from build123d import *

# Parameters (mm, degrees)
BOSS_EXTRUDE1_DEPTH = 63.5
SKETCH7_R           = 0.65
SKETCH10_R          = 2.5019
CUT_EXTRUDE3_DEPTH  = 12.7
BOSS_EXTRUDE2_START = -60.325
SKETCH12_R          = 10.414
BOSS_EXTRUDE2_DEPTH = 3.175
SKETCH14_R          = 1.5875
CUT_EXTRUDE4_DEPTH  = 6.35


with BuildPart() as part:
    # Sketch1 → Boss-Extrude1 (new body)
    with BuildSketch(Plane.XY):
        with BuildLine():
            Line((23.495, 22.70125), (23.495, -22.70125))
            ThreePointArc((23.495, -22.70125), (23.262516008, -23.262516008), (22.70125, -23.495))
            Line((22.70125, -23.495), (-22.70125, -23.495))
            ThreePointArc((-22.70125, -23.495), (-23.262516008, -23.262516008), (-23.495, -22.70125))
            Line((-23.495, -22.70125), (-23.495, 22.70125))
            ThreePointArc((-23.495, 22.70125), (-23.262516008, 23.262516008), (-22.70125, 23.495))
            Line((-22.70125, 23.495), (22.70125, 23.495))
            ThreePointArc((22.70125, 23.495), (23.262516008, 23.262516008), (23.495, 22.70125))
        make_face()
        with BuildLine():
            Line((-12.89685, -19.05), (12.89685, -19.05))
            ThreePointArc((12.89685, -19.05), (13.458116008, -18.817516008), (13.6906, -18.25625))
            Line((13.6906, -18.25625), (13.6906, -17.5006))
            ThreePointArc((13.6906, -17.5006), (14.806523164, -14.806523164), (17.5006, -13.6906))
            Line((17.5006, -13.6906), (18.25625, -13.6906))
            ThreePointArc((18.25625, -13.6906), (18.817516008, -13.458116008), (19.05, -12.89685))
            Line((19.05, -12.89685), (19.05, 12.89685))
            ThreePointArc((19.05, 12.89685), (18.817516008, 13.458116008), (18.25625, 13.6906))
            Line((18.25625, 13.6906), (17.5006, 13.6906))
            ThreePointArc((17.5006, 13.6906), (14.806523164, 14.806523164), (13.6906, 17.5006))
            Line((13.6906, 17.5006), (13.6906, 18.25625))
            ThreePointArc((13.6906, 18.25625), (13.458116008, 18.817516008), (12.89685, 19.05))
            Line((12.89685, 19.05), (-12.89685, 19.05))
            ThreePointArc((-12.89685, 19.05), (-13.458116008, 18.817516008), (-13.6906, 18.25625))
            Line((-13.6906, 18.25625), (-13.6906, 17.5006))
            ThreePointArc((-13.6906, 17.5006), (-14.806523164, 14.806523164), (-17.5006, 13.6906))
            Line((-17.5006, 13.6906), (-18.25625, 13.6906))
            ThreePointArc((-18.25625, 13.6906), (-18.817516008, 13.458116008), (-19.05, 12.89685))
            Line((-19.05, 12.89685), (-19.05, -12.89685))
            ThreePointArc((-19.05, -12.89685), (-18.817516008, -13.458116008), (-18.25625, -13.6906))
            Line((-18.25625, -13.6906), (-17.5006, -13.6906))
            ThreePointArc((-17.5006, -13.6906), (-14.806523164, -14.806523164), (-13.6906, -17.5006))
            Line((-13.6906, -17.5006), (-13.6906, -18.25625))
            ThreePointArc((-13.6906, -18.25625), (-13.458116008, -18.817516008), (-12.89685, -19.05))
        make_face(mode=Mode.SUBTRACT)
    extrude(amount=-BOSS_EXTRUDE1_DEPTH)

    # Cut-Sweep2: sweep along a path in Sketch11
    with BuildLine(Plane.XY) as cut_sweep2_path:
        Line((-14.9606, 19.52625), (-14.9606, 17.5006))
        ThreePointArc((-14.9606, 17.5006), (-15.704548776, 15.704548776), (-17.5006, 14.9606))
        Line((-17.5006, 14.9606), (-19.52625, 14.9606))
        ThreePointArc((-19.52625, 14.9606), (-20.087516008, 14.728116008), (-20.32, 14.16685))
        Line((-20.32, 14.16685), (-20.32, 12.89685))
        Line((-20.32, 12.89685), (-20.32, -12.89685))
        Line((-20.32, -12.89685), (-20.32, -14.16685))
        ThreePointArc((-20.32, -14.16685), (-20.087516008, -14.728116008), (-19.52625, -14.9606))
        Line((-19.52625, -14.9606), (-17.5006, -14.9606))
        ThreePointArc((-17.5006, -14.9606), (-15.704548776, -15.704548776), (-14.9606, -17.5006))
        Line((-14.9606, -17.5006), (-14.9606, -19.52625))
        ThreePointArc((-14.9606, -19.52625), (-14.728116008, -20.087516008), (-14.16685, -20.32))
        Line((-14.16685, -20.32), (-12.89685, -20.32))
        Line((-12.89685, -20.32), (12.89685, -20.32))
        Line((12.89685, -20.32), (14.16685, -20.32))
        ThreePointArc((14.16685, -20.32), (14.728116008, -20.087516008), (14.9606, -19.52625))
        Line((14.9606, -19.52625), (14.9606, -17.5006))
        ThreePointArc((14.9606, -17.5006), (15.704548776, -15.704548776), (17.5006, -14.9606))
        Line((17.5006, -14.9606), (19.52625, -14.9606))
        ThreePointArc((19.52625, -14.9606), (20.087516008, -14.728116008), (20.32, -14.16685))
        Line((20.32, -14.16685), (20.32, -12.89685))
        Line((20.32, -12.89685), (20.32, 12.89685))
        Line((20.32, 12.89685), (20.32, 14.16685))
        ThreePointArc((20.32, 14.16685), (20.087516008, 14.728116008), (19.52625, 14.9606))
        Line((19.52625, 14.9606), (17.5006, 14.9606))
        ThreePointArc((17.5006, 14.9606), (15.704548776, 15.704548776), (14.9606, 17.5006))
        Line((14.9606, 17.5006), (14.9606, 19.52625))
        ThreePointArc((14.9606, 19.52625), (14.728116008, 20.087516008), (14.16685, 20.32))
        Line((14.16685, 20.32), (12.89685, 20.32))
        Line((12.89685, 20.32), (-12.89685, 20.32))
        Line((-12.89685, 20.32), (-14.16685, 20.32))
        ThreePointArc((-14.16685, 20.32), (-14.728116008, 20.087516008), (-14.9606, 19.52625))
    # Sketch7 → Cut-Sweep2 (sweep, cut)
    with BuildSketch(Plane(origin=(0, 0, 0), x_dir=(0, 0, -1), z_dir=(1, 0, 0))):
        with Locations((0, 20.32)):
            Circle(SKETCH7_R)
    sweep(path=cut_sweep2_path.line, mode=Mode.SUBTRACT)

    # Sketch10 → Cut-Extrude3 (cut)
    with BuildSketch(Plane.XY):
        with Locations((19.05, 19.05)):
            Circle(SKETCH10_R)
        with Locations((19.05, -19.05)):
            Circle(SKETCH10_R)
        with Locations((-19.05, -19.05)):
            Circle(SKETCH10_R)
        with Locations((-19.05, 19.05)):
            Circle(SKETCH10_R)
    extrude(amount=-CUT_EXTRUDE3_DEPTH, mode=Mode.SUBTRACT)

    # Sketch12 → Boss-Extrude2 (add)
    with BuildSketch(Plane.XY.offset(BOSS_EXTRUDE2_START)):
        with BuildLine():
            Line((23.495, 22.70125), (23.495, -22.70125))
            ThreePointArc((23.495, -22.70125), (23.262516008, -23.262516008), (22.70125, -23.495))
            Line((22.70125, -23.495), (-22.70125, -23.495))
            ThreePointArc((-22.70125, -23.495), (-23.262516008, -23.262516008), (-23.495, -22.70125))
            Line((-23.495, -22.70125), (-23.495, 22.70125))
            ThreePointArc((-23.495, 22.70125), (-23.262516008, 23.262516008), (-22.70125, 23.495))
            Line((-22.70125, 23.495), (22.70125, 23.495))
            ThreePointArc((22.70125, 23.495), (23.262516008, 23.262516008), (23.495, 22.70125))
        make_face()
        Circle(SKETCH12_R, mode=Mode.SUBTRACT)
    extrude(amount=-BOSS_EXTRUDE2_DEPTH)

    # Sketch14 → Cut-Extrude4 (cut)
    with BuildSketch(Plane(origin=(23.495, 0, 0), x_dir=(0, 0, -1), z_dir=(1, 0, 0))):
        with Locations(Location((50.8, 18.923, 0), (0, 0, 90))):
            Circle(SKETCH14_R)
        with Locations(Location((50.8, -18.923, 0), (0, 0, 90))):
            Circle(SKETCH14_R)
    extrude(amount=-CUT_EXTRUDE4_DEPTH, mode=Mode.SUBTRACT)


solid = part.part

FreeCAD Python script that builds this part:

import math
import FreeCAD as App
import Part
import Sketcher
Q = App.Units.Quantity

doc = App.newDocument("Part")
body = doc.addObject("PartDesign::Body", "Body")

# Sketch on XY plane
sketch1 = body.newObject("Sketcher::SketchObject", "Sketch")
sketch1.AttachmentSupport = (doc.getObject("XY_Plane"), [""])
sketch1.MapMode = "FlatFace"
sketch1.addGeometry([
    Part.LineSegment(App.Vector(23.495, -22.70125, 0), App.Vector(23.495, 22.70125, 0)),  # 0
    Part.ArcOfCircle(Part.Circle(App.Vector(22.70125, 22.70125, 0), App.Vector(0, 0, 1), 0.79375), math.radians(0), math.radians(90)),  # 1
    Part.LineSegment(App.Vector(22.70125, 23.495, 0), App.Vector(-22.70125, 23.495, 0)),  # 2
    Part.ArcOfCircle(Part.Circle(App.Vector(-22.70125, 22.70125, 0), App.Vector(0, 0, 1), 0.79375), math.radians(90), math.radians(180)),  # 3
    Part.LineSegment(App.Vector(-23.495, 22.70125, 0), App.Vector(-23.495, -22.70125, 0)),  # 4
    Part.ArcOfCircle(Part.Circle(App.Vector(-22.70125, -22.70125, 0), App.Vector(0, 0, 1), 0.79375), math.radians(180), math.radians(270)),  # 5
    Part.LineSegment(App.Vector(-22.70125, -23.495, 0), App.Vector(22.70125, -23.495, 0)),  # 6
    Part.ArcOfCircle(Part.Circle(App.Vector(22.70125, -22.70125, 0), App.Vector(0, 0, 1), 0.79375), math.radians(-90), math.radians(0)),  # 7
    Part.ArcOfCircle(Part.Circle(App.Vector(-12.89685, -18.25625, 0), App.Vector(0, 0, 1), 0.79375), math.radians(180), math.radians(270)),  # 8
    Part.LineSegment(App.Vector(-13.6906, -18.25625, 0), App.Vector(-13.6906, -17.5006, 0)),  # 9
    Part.ArcOfCircle(Part.Circle(App.Vector(-17.5006, -17.5006, 0), App.Vector(0, 0, 1), 3.81), math.radians(0), math.radians(90)),  # 10
    Part.LineSegment(App.Vector(-17.5006, -13.6906, 0), App.Vector(-18.25625, -13.6906, 0)),  # 11
    Part.ArcOfCircle(Part.Circle(App.Vector(-18.25625, -12.89685, 0), App.Vector(0, 0, 1), 0.79375), math.radians(180), math.radians(270)),  # 12
    Part.LineSegment(App.Vector(-19.05, -12.89685, 0), App.Vector(-19.05, 12.89685, 0)),  # 13
    Part.ArcOfCircle(Part.Circle(App.Vector(-18.25625, 12.89685, 0), App.Vector(0, 0, 1), 0.79375), math.radians(90), math.radians(180)),  # 14
    Part.LineSegment(App.Vector(-18.25625, 13.6906, 0), App.Vector(-17.5006, 13.6906, 0)),  # 15
    Part.ArcOfCircle(Part.Circle(App.Vector(-17.5006, 17.5006, 0), App.Vector(0, 0, 1), 3.81), math.radians(-90), math.radians(0)),  # 16
    Part.LineSegment(App.Vector(-13.6906, 17.5006, 0), App.Vector(-13.6906, 18.25625, 0)),  # 17
    Part.ArcOfCircle(Part.Circle(App.Vector(-12.89685, 18.25625, 0), App.Vector(0, 0, 1), 0.79375), math.radians(90), math.radians(180)),  # 18
    Part.LineSegment(App.Vector(-12.89685, 19.05, 0), App.Vector(12.89685, 19.05, 0)),  # 19
    Part.ArcOfCircle(Part.Circle(App.Vector(12.89685, 18.25625, 0), App.Vector(0, 0, 1), 0.79375), math.radians(0), math.radians(90)),  # 20
    Part.LineSegment(App.Vector(13.6906, 18.25625, 0), App.Vector(13.6906, 17.5006, 0)),  # 21
    Part.ArcOfCircle(Part.Circle(App.Vector(17.5006, 17.5006, 0), App.Vector(0, 0, 1), 3.81), math.radians(-180), math.radians(-90)),  # 22
    Part.LineSegment(App.Vector(17.5006, 13.6906, 0), App.Vector(18.25625, 13.6906, 0)),  # 23
    Part.ArcOfCircle(Part.Circle(App.Vector(18.25625, 12.89685, 0), App.Vector(0, 0, 1), 0.79375), math.radians(0), math.radians(90)),  # 24
    Part.LineSegment(App.Vector(19.05, 12.89685, 0), App.Vector(19.05, -12.89685, 0)),  # 25
    Part.ArcOfCircle(Part.Circle(App.Vector(18.25625, -12.89685, 0), App.Vector(0, 0, 1), 0.79375), math.radians(-90), math.radians(0)),  # 26
    Part.LineSegment(App.Vector(18.25625, -13.6906, 0), App.Vector(17.5006, -13.6906, 0)),  # 27
    Part.ArcOfCircle(Part.Circle(App.Vector(17.5006, -17.5006, 0), App.Vector(0, 0, 1), 3.81), math.radians(90), math.radians(180)),  # 28
    Part.LineSegment(App.Vector(13.6906, -17.5006, 0), App.Vector(13.6906, -18.25625, 0)),  # 29
    Part.ArcOfCircle(Part.Circle(App.Vector(12.89685, -18.25625, 0), App.Vector(0, 0, 1), 0.79375), math.radians(-90), math.radians(0)),  # 30
    Part.LineSegment(App.Vector(12.89685, -19.05, 0), App.Vector(-12.89685, -19.05, 0)),  # 31
], False)
sketch1.addConstraint([
    Sketcher.Constraint("Tangent", 0, 2, 1, 1),
    Sketcher.Constraint("Tangent", 1, 2, 2, 1),
    Sketcher.Constraint("Tangent", 2, 2, 3, 1),
    Sketcher.Constraint("Tangent", 3, 2, 4, 1),
    Sketcher.Constraint("Tangent", 4, 2, 5, 1),
    Sketcher.Constraint("Tangent", 5, 2, 6, 1),
    Sketcher.Constraint("Tangent", 6, 2, 7, 1),
    Sketcher.Constraint("Tangent", 7, 2, 0, 1),
    Sketcher.Constraint("Tangent", 8, 1, 9, 1),
    Sketcher.Constraint("Tangent", 9, 2, 10, 1),
    Sketcher.Constraint("Tangent", 10, 2, 11, 1),
    Sketcher.Constraint("Tangent", 11, 2, 12, 2),
    Sketcher.Constraint("Tangent", 12, 1, 13, 1),
    Sketcher.Constraint("Tangent", 13, 2, 14, 2),
    Sketcher.Constraint("Tangent", 14, 1, 15, 1),
    Sketcher.Constraint("Tangent", 15, 2, 16, 1),
    Sketcher.Constraint("Tangent", 16, 2, 17, 1),
    Sketcher.Constraint("Tangent", 17, 2, 18, 2),
    Sketcher.Constraint("Tangent", 18, 1, 19, 1),
    Sketcher.Constraint("Tangent", 19, 2, 20, 2),
    Sketcher.Constraint("Tangent", 20, 1, 21, 1),
    Sketcher.Constraint("Tangent", 21, 2, 22, 1),
    Sketcher.Constraint("Tangent", 22, 2, 23, 1),
    Sketcher.Constraint("Tangent", 23, 2, 24, 2),
    Sketcher.Constraint("Tangent", 24, 1, 25, 1),
    Sketcher.Constraint("Tangent", 25, 2, 26, 2),
    Sketcher.Constraint("Tangent", 26, 1, 27, 1),
    Sketcher.Constraint("Tangent", 27, 2, 28, 1),
    Sketcher.Constraint("Tangent", 28, 2, 29, 1),
    Sketcher.Constraint("Tangent", 29, 2, 30, 2),
    Sketcher.Constraint("Tangent", 30, 1, 31, 1),
    Sketcher.Constraint("Tangent", 31, 2, 8, 2),
    Sketcher.Constraint("Vertical", 0),
    Sketcher.Constraint("Horizontal", 2),
    Sketcher.Constraint("Vertical", 4),
    Sketcher.Constraint("Horizontal", 6),
    Sketcher.Constraint("Vertical", 9),
    Sketcher.Constraint("Horizontal", 11),
    Sketcher.Constraint("Vertical", 13),
    Sketcher.Constraint("Horizontal", 15),
    Sketcher.Constraint("Vertical", 17),
    Sketcher.Constraint("Horizontal", 19),
    Sketcher.Constraint("Vertical", 21),
    Sketcher.Constraint("Horizontal", 23),
    Sketcher.Constraint("Vertical", 25),
    Sketcher.Constraint("Horizontal", 27),
    Sketcher.Constraint("Vertical", 29),
    Sketcher.Constraint("Horizontal", 31),
    Sketcher.Constraint("Equal", 1, 3),
    Sketcher.Constraint("Equal", 3, 5),
    Sketcher.Constraint("Equal", 5, 7),
    Sketcher.Constraint("Equal", 7, 8),
    Sketcher.Constraint("Equal", 8, 12),
    Sketcher.Constraint("Equal", 12, 14),
    Sketcher.Constraint("Equal", 10, 16),
    Sketcher.Constraint("Equal", 14, 18),
    Sketcher.Constraint("Equal", 18, 20),
    Sketcher.Constraint("Equal", 16, 22),
    Sketcher.Constraint("Equal", 20, 24),
    Sketcher.Constraint("Equal", 24, 26),
    Sketcher.Constraint("Equal", 22, 28),
    Sketcher.Constraint("Equal", 26, 30),
    Sketcher.Constraint("Symmetric", 1, 3, 5, 3, -1, 1),
    Sketcher.Constraint("Symmetric", 8, 3, 20, 3, -1, 1),
    Sketcher.Constraint("Symmetric", 12, 3, 24, 3, -1, 1),
    Sketcher.Constraint("Symmetric", 16, 3, 28, 3, -1, 1),
    Sketcher.Constraint("Symmetric", 16, 3, 22, 3, -2),
    Sketcher.Constraint("Equal", 6, 0),
    Sketcher.Constraint("Equal", 27, 9),
    Sketcher.Constraint("Equal", 31, 13),
    Sketcher.Constraint("Radius", 10, Q("0.15 in")),
    Sketcher.Constraint("Radius", 1, Q("0.03125 in")),
    Sketcher.Constraint("DistanceX", 12, 1, -1, 1, Q("0.75 in")),
    Sketcher.Constraint("DistanceX", 2, 2, 2, 1, Q("1.7875 in")),
    Sketcher.Constraint("DistanceX", 19, 1, 19, 2, Q("1.0155 in")),
])
pad1 = body.newObject("PartDesign::Pad", "Pad")
pad1.Profile = sketch1
pad1.Length = Q("2.5 in")
pad1.Reversed = True

# Sketch on YZ plane
sketch2 = body.newObject("Sketcher::SketchObject", "Sketch001")
sketch2.AttachmentSupport = (doc.getObject("YZ_Plane"), [""])
sketch2.MapMode = "FlatFace"
sketch2.addGeometry(Part.Circle(App.Vector(20.32, 0, 0), App.Vector(0, 0, 1), 0.65), False)
sketch2.addConstraint([
    Sketcher.Constraint("PointOnObject", 0, 3, -1),
    Sketcher.Constraint("DistanceX", -1, 1, 0, 3, Q("0.8 in")),
    Sketcher.Constraint("Diameter", 0, 1.3),
])

# Sketch on XY plane
sketch3 = body.newObject("Sketcher::SketchObject", "Sketch002")
sketch3.AttachmentSupport = (doc.getObject("XY_Plane"), [""])
sketch3.MapMode = "FlatFace"
sketch3.addGeometry([
    Part.LineSegment(App.Vector(-14.9606, 19.52625, 0), App.Vector(-14.9606, 17.5006, 0)),  # 0
    Part.ArcOfCircle(Part.Circle(App.Vector(-17.5006, 17.5006, 0), App.Vector(0, 0, 1), 2.54), math.radians(-90), math.radians(0)),  # 1
    Part.LineSegment(App.Vector(-17.5006, 14.9606, 0), App.Vector(-19.52625, 14.9606, 0)),  # 2
    Part.ArcOfCircle(Part.Circle(App.Vector(-19.52625, 14.16685, 0), App.Vector(0, 0, 1), 0.79375), math.radians(90), math.radians(180)),  # 3
    Part.LineSegment(App.Vector(-20.32, 14.16685, 0), App.Vector(-20.32, -14.16685, 0)),  # 4
    Part.ArcOfCircle(Part.Circle(App.Vector(-19.52625, -14.16685, 0), App.Vector(0, 0, 1), 0.79375), math.radians(180), math.radians(270)),  # 5
    Part.LineSegment(App.Vector(-19.52625, -14.9606, 0), App.Vector(-17.5006, -14.9606, 0)),  # 6
    Part.ArcOfCircle(Part.Circle(App.Vector(-17.5006, -17.5006, 0), App.Vector(0, 0, 1), 2.54), math.radians(0), math.radians(90)),  # 7
    Part.LineSegment(App.Vector(-14.9606, -17.5006, 0), App.Vector(-14.9606, -19.52625, 0)),  # 8
    Part.ArcOfCircle(Part.Circle(App.Vector(-14.16685, -19.52625, 0), App.Vector(0, 0, 1), 0.79375), math.radians(180), math.radians(270)),  # 9
    Part.LineSegment(App.Vector(-14.16685, -20.32, 0), App.Vector(14.16685, -20.32, 0)),  # 10
    Part.ArcOfCircle(Part.Circle(App.Vector(14.16685, -19.52625, 0), App.Vector(0, 0, 1), 0.79375), math.radians(-90), math.radians(0)),  # 11
    Part.LineSegment(App.Vector(14.9606, -19.52625, 0), App.Vector(14.9606, -17.5006, 0)),  # 12
    Part.ArcOfCircle(Part.Circle(App.Vector(17.5006, -17.5006, 0), App.Vector(0, 0, 1), 2.54), math.radians(90), math.radians(180)),  # 13
    Part.LineSegment(App.Vector(17.5006, -14.9606, 0), App.Vector(19.52625, -14.9606, 0)),  # 14
    Part.ArcOfCircle(Part.Circle(App.Vector(19.52625, -14.16685, 0), App.Vector(0, 0, 1), 0.79375), math.radians(-90), math.radians(0)),  # 15
    Part.LineSegment(App.Vector(20.32, -14.16685, 0), App.Vector(20.32, 14.16685, 0)),  # 16
    Part.ArcOfCircle(Part.Circle(App.Vector(19.52625, 14.16685, 0), App.Vector(0, 0, 1), 0.79375), math.radians(0), math.radians(90)),  # 17
    Part.LineSegment(App.Vector(19.52625, 14.9606, 0), App.Vector(17.5006, 14.9606, 0)),  # 18
    Part.ArcOfCircle(Part.Circle(App.Vector(17.5006, 17.5006, 0), App.Vector(0, 0, 1), 2.54), math.radians(-180), math.radians(-90)),  # 19
    Part.LineSegment(App.Vector(14.9606, 17.5006, 0), App.Vector(14.9606, 19.52625, 0)),  # 20
    Part.ArcOfCircle(Part.Circle(App.Vector(14.16685, 19.52625, 0), App.Vector(0, 0, 1), 0.79375), math.radians(0), math.radians(90)),  # 21
    Part.LineSegment(App.Vector(14.16685, 20.32, 0), App.Vector(-14.16685, 20.32, 0)),  # 22
    Part.ArcOfCircle(Part.Circle(App.Vector(-14.16685, 19.52625, 0), App.Vector(0, 0, 1), 0.79375), math.radians(90), math.radians(180)),  # 23
], False)
sketch3.addConstraint([
    Sketcher.Constraint("Tangent", 0, 2, 1, 2),
    Sketcher.Constraint("Tangent", 1, 1, 2, 1),
    Sketcher.Constraint("Tangent", 2, 2, 3, 1),
    Sketcher.Constraint("Tangent", 3, 2, 4, 1),
    Sketcher.Constraint("Tangent", 4, 2, 5, 1),
    Sketcher.Constraint("Tangent", 5, 2, 6, 1),
    Sketcher.Constraint("Tangent", 6, 2, 7, 2),
    Sketcher.Constraint("Tangent", 7, 1, 8, 1),
    Sketcher.Constraint("Tangent", 8, 2, 9, 1),
    Sketcher.Constraint("Tangent", 9, 2, 10, 1),
    Sketcher.Constraint("Tangent", 10, 2, 11, 1),
    Sketcher.Constraint("Tangent", 11, 2, 12, 1),
    Sketcher.Constraint("Tangent", 12, 2, 13, 2),
    Sketcher.Constraint("Tangent", 13, 1, 14, 1),
    Sketcher.Constraint("Tangent", 14, 2, 15, 1),
    Sketcher.Constraint("Tangent", 15, 2, 16, 1),
    Sketcher.Constraint("Tangent", 16, 2, 17, 1),
    Sketcher.Constraint("Tangent", 17, 2, 18, 1),
    Sketcher.Constraint("Tangent", 18, 2, 19, 2),
    Sketcher.Constraint("Tangent", 19, 1, 20, 1),
    Sketcher.Constraint("Tangent", 20, 2, 21, 1),
    Sketcher.Constraint("Tangent", 21, 2, 22, 1),
    Sketcher.Constraint("Tangent", 22, 2, 23, 1),
    Sketcher.Constraint("Tangent", 23, 2, 0, 1),
    Sketcher.Constraint("Vertical", 0),
    Sketcher.Constraint("Horizontal", 2),
    Sketcher.Constraint("Vertical", 4),
    Sketcher.Constraint("Horizontal", 6),
    Sketcher.Constraint("Vertical", 8),
    Sketcher.Constraint("Horizontal", 10),
    Sketcher.Constraint("Vertical", 12),
    Sketcher.Constraint("Horizontal", 14),
    Sketcher.Constraint("Vertical", 16),
    Sketcher.Constraint("Horizontal", 18),
    Sketcher.Constraint("Vertical", 20),
    Sketcher.Constraint("Horizontal", 22),
    Sketcher.Constraint("Equal", 3, 5),
    Sketcher.Constraint("Equal", 1, 7),
    Sketcher.Constraint("Equal", 5, 9),
    Sketcher.Constraint("Equal", 9, 11),
    Sketcher.Constraint("Equal", 7, 13),
    Sketcher.Constraint("Equal", 11, 15),
    Sketcher.Constraint("Equal", 15, 17),
    Sketcher.Constraint("Equal", 13, 19),
    Sketcher.Constraint("Equal", 17, 21),
    Sketcher.Constraint("Equal", 21, 23),
    Sketcher.Constraint("Symmetric", 1, 3, 13, 3, -1, 1),
    Sketcher.Constraint("Symmetric", 5, 3, 17, 3, -1, 1),
    Sketcher.Constraint("Symmetric", 9, 3, 21, 3, -1, 1),
    Sketcher.Constraint("Symmetric", 7, 3, 13, 3, -2),
    Sketcher.Constraint("Equal", 18, 0),
    Sketcher.Constraint("Equal", 22, 4),
    Sketcher.Constraint("Radius", 1, Q("0.1 in")),
    Sketcher.Constraint("Radius", 3, Q("0.03125 in")),
    Sketcher.Constraint("DistanceX", 3, 2, -1, 1, Q("0.8 in")),
    Sketcher.Constraint("DistanceX", 10, 1, 10, 2, Q("1.1155 in")),
])
doc.recompute()

subtractivepipe = body.newObject("PartDesign::SubtractivePipe", "SubtractivePipe")
subtractivepipe.Profile = sketch2
subtractivepipe.Spine = (sketch3, ["Edge1", "Edge2", "Edge3", "Edge4", "Edge5", "Edge6", "Edge7", "Edge8", "Edge9", "Edge10", "Edge11", "Edge12", "Edge13", "Edge14", "Edge15", "Edge16", "Edge17", "Edge18", "Edge19", "Edge20", "Edge21", "Edge22", "Edge23", "Edge24"])

# Sketch on XY plane
sketch4 = body.newObject("Sketcher::SketchObject", "Sketch003")
sketch4.AttachmentSupport = (doc.getObject("XY_Plane"), [""])
sketch4.MapMode = "FlatFace"
sketch4.addGeometry([
    Part.Circle(App.Vector(19.05, 19.05, 0), App.Vector(0, 0, 1), 2.5019),
    Part.Circle(App.Vector(19.05, -19.05, 0), App.Vector(0, 0, 1), 2.5019),
    Part.Circle(App.Vector(-19.05, -19.05, 0), App.Vector(0, 0, 1), 2.5019),
    Part.Circle(App.Vector(-19.05, 19.05, 0), App.Vector(0, 0, 1), 2.5019),
], False)
sketch4.addConstraint([
    Sketcher.Constraint("Equal", 0, 1),
    Sketcher.Constraint("Equal", 1, 2),
    Sketcher.Constraint("Equal", 2, 3),
    Sketcher.Constraint("Symmetric", 0, 3, 2, 3, -1, 1),
    Sketcher.Constraint("Symmetric", 1, 3, 3, 3, -1, 1),
    Sketcher.Constraint("Symmetric", 1, 3, 2, 3, -2),
    Sketcher.Constraint("Diameter", 0, Q("0.197 in")),
    Sketcher.Constraint("DistanceY", 1, 3, 0, 3, Q("1.5 in")),
    Sketcher.Constraint("DistanceX", 2, 3, 1, 3, Q("1.5 in")),
])
pocket1 = body.newObject("PartDesign::Pocket", "Pocket")
pocket1.Profile = sketch4
pocket1.Length = Q("0.5 in")

# Sketch on XY plane
sketch5 = body.newObject("Sketcher::SketchObject", "Sketch004")
sketch5.AttachmentSupport = (doc.getObject("XY_Plane"), [""])
sketch5.MapMode = "FlatFace"
sketch5.AttachmentOffset = App.Placement(App.Vector(0, 0, -2.375 * 25.4), App.Rotation())
sketch5.addGeometry([
    Part.LineSegment(App.Vector(23.495, -22.70125, 0), App.Vector(23.495, 22.70125, 0)),  # 0
    Part.ArcOfCircle(Part.Circle(App.Vector(22.70125, 22.70125, 0), App.Vector(0, 0, 1), 0.79375), math.radians(0), math.radians(90)),  # 1
    Part.LineSegment(App.Vector(22.70125, 23.495, 0), App.Vector(-22.70125, 23.495, 0)),  # 2
    Part.ArcOfCircle(Part.Circle(App.Vector(-22.70125, 22.70125, 0), App.Vector(0, 0, 1), 0.79375), math.radians(90), math.radians(180)),  # 3
    Part.LineSegment(App.Vector(-23.495, 22.70125, 0), App.Vector(-23.495, -22.70125, 0)),  # 4
    Part.ArcOfCircle(Part.Circle(App.Vector(-22.70125, -22.70125, 0), App.Vector(0, 0, 1), 0.79375), math.radians(180), math.radians(270)),  # 5
    Part.LineSegment(App.Vector(-22.70125, -23.495, 0), App.Vector(22.70125, -23.495, 0)),  # 6
    Part.ArcOfCircle(Part.Circle(App.Vector(22.70125, -22.70125, 0), App.Vector(0, 0, 1), 0.79375), math.radians(-90), math.radians(0)),  # 7
    Part.Circle(App.Vector(0, 0, 0), App.Vector(0, 0, 1), 10.414),  # 8
], False)
sketch5.addConstraint([
    Sketcher.Constraint("Tangent", 0, 2, 1, 1),
    Sketcher.Constraint("Tangent", 1, 2, 2, 1),
    Sketcher.Constraint("Tangent", 2, 2, 3, 1),
    Sketcher.Constraint("Tangent", 3, 2, 4, 1),
    Sketcher.Constraint("Tangent", 4, 2, 5, 1),
    Sketcher.Constraint("Tangent", 5, 2, 6, 1),
    Sketcher.Constraint("Tangent", 6, 2, 7, 1),
    Sketcher.Constraint("Tangent", 7, 2, 0, 1),
    Sketcher.Constraint("Vertical", 0),
    Sketcher.Constraint("Horizontal", 2),
    Sketcher.Constraint("Vertical", 4),
    Sketcher.Constraint("Horizontal", 6),
    Sketcher.Constraint("Coincident", 8, 3, -1, 1),
    Sketcher.Constraint("Equal", 1, 3),
    Sketcher.Constraint("Equal", 3, 5),
    Sketcher.Constraint("Equal", 5, 7),
    Sketcher.Constraint("Symmetric", 1, 3, 5, 3, -1, 1),
    Sketcher.Constraint("Equal", 6, 0),
    Sketcher.Constraint("Diameter", 8, Q("0.82 in")),
    Sketcher.Constraint("Radius", 1, Q("0.03125 in")),
    Sketcher.Constraint("DistanceX", 2, 2, 2, 1, Q("1.7875 in")),
])
pad2 = body.newObject("PartDesign::Pad", "Pad001")
pad2.Profile = sketch5
pad2.Length = Q("0.125 in")
pad2.Reversed = True

# Sketch on YZ plane
sketch6 = body.newObject("Sketcher::SketchObject", "Sketch005")
sketch6.AttachmentSupport = (doc.getObject("YZ_Plane"), [""])
sketch6.MapMode = "FlatFace"
sketch6.AttachmentOffset = App.Placement(App.Vector(0, 0, 0.925 * 25.4), App.Rotation())
sketch6.addGeometry([
    Part.Circle(App.Vector(18.923, -50.8, 0), App.Vector(0, 0, 1), 1.5875),
    Part.Circle(App.Vector(-18.923, -50.8, 0), App.Vector(0, 0, 1), 1.5875),
], False)
sketch6.addConstraint([
    Sketcher.Constraint("Equal", 0, 1),
    Sketcher.Constraint("Symmetric", 0, 3, 1, 3, -2),
    Sketcher.Constraint("Diameter", 0, Q("0.125 in")),
    Sketcher.Constraint("DistanceY", 0, 3, -1, 1, Q("2 in")),
    Sketcher.Constraint("DistanceX", 1, 3, 0, 3, Q("1.49 in")),
])
pocket2 = body.newObject("PartDesign::Pocket", "Pocket001")
pocket2.Profile = sketch6
pocket2.Length = Q("0.25 in")

doc.recompute()
